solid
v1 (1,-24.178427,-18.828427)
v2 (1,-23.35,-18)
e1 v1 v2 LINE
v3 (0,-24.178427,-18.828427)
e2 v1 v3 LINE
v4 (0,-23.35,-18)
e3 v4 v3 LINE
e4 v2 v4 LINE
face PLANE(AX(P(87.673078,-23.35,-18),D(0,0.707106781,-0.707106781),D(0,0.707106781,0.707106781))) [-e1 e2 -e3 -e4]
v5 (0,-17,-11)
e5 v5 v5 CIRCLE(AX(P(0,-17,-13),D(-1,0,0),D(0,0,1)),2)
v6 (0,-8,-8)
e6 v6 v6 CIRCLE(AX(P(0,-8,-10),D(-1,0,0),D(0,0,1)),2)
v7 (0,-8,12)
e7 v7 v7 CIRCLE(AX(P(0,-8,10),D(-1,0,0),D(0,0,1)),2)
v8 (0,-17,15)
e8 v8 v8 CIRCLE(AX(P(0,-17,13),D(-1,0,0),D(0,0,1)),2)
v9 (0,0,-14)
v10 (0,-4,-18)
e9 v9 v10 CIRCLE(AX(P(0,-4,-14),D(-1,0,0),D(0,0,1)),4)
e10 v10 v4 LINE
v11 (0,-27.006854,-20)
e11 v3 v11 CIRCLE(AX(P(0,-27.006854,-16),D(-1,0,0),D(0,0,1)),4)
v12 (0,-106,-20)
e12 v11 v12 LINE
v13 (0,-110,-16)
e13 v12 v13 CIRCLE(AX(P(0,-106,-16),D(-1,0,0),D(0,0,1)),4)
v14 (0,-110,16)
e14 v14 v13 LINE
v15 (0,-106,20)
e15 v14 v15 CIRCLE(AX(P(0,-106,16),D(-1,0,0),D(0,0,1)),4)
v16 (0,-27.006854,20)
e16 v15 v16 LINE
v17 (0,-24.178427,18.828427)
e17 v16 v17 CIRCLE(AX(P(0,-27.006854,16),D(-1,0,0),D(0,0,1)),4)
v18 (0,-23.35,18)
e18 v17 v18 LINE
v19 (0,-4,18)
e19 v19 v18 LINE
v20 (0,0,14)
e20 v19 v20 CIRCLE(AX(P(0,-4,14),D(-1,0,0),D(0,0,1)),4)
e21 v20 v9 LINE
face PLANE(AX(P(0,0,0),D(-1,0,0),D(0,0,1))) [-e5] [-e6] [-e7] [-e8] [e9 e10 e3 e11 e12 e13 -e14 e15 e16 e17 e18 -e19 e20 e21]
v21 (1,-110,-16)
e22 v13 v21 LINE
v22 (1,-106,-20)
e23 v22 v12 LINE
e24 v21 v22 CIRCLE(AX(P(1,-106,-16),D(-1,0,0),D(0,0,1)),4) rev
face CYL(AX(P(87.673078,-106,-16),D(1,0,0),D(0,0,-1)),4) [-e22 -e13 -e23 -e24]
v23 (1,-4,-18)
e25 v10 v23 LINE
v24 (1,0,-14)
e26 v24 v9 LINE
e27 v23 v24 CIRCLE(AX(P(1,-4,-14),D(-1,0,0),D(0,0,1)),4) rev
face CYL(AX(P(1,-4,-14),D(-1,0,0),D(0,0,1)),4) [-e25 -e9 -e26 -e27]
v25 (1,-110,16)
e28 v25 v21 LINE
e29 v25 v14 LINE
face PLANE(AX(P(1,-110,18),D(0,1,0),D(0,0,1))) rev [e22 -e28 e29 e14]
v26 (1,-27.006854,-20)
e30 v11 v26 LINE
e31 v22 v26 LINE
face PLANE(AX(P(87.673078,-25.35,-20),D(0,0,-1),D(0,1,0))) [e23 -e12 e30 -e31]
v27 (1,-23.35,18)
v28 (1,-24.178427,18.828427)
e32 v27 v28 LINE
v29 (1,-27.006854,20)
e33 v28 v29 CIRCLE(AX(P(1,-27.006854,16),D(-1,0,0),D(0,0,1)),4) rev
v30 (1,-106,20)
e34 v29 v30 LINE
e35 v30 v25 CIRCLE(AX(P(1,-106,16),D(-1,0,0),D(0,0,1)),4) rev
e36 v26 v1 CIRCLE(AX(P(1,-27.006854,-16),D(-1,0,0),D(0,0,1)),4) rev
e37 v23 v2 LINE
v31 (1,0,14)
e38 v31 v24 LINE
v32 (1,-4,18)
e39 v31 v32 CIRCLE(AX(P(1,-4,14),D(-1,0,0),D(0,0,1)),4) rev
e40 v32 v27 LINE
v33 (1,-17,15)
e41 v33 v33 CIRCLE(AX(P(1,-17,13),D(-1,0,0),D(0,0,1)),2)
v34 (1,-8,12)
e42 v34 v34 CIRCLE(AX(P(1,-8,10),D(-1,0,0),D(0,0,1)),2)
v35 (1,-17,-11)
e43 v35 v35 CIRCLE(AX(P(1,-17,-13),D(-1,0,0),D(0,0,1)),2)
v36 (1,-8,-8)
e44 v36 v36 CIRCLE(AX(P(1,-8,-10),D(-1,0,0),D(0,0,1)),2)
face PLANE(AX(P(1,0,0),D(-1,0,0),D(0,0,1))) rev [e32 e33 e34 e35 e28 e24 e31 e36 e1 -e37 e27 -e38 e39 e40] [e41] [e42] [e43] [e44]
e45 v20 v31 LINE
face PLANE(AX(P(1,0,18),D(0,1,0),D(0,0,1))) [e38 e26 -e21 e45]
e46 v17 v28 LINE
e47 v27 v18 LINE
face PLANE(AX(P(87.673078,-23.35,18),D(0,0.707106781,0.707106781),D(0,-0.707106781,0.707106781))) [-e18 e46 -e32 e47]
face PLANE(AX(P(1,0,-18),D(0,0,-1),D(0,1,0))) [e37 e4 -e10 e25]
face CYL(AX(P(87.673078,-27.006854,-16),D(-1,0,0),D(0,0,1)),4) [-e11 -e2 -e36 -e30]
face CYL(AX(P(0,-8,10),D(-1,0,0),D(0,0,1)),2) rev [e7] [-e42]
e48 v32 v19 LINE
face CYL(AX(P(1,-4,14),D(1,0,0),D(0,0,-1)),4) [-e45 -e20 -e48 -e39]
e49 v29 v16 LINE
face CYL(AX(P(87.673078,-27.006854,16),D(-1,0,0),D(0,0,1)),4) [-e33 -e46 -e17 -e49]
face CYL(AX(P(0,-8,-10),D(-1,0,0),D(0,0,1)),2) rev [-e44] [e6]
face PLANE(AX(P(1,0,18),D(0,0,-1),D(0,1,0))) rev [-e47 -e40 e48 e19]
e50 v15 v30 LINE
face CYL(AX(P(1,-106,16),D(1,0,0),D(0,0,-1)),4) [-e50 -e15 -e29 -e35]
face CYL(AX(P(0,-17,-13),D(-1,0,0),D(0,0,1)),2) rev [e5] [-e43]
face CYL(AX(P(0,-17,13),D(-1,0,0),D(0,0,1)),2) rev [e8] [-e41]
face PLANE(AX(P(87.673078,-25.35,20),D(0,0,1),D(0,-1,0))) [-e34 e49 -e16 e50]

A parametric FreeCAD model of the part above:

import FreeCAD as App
import Part
import Sketcher

V = App.Vector


def edges_at(feature, points):
    """Names of the edges that pass closest to the given points."""
    edges = feature.Shape.Edges
    near = lambda p: min(range(len(edges)), key=lambda i: edges[i].distToShape(Part.Vertex(*p))[0])
    return sorted({f"Edge{near(p) + 1}" for p in points})

doc = App.newDocument("Part")
body = doc.addObject("PartDesign::Body", "Body")

sketch1 = doc.addObject("Sketcher::SketchObject", "Sketch")
body.addObject(sketch1)
sketch1.AttachmentSupport = (doc.YZ_Plane, [""])
sketch1.MapMode = "FlatFace"
sketch1.addGeometry([
    Part.LineSegment(V(0, 18, 0), V(-110, 18, 0)),
    Part.LineSegment(V(-110, 18, 0), V(-110, -18, 0)),
    Part.LineSegment(V(-110, -18, 0), V(0, -18, 0)),
    Part.LineSegment(V(0, -18, 0), V(0, 18, 0)),
], False)
sketch1.addConstraint([
    Sketcher.Constraint("Coincident", 0, 2, 1, 1),
    Sketcher.Constraint("Coincident", 1, 2, 2, 1),
    Sketcher.Constraint("Coincident", 2, 2, 3, 1),
    Sketcher.Constraint("Coincident", 3, 2, 0, 1),
    Sketcher.Constraint("Horizontal", 0),
    Sketcher.Constraint("Vertical", 1),
    Sketcher.Constraint("Horizontal", 2),
    Sketcher.Constraint("Vertical", 3),
    Sketcher.Constraint("Symmetric", 2, 2, 3, 2, -1, 1),
    Sketcher.Constraint("DistanceX", 0, 2, 0, 1, 110.0),
    Sketcher.Constraint("DistanceY", 1, 2, 1, 1, 36.0),
])
pad1 = doc.addObject("PartDesign::Pad", "Pad")
body.addObject(pad1)
pad1.Profile = sketch1
pad1.Length = 1

sketch2 = doc.addObject("Sketcher::SketchObject", "Sketch001")
body.addObject(sketch2)
sketch2.AttachmentSupport = (doc.YZ_Plane, [""])
sketch2.MapMode = "FlatFace"
sketch2.addGeometry([
    Part.Circle(V(-8, -10, 0), V(0, 0, 1), 2),
    Part.Circle(V(-8, 10, 0), V(0, 0, 1), 2),
], False)
sketch2.addConstraint([
    Sketcher.Constraint("Equal", 0, 1),
    Sketcher.Constraint("Symmetric", 0, 3, 1, 3, -1),
    Sketcher.Constraint("Diameter", 0, 4.0),
    Sketcher.Constraint("DistanceX", 0, 3, -1, 1, 8.0),
    Sketcher.Constraint("DistanceY", 0, 3, -1, 1, 10.0),
])
doc.recompute()
hole = doc.addObject("PartDesign::Hole", "Hole")
body.addObject(hole)
hole.Profile = sketch2
hole.ThreadType = "None"
hole.Diameter = 4
hole.DepthType = "ThroughAll"
hole.Reversed = True

sketch3 = doc.addObject("Sketcher::SketchObject", "Sketch002")
body.addObject(sketch3)
sketch3.AttachmentSupport = (doc.YZ_Plane, [""])
sketch3.MapMode = "FlatFace"
sketch3.addGeometry([
    Part.Circle(V(-17, -13, 0), V(0, 0, 1), 2),
    Part.Circle(V(-17, 13, 0), V(0, 0, 1), 2),
], False)
sketch3.addConstraint([
    Sketcher.Constraint("Equal", 0, 1),
    Sketcher.Constraint("Symmetric", 0, 3, 1, 3, -1),
    Sketcher.Constraint("Diameter", 0, 4.0),
    Sketcher.Constraint("DistanceX", 0, 3, -1, 1, 17.0),
    Sketcher.Constraint("DistanceY", 0, 3, -1, 1, 13.0),
])
doc.recompute()
hole2 = doc.addObject("PartDesign::Hole", "Hole001")
body.addObject(hole2)
hole2.Profile = sketch3
hole2.ThreadType = "None"
hole2.Diameter = 4
hole2.DepthType = "ThroughAll"
hole2.Reversed = True

sketch4 = doc.addObject("Sketcher::SketchObject", "Sketch003")
body.addObject(sketch4)
sketch4.AttachmentSupport = (doc.YZ_Plane, [""])
sketch4.MapMode = "FlatFace"
sketch4.addGeometry([
    Part.LineSegment(V(-25.4, 20, 0), V(-23.4, 18, 0)),
    Part.LineSegment(V(-23.4, 18, 0), V(-110, 18, 0)),
    Part.LineSegment(V(-110, 18, 0), V(-110, 20, 0)),
    Part.LineSegment(V(-110, 20, 0), V(-25.4, 20, 0)),
    Part.LineSegment(V(-23.4, -18, 0), V(-25.4, -20, 0)),
    Part.LineSegment(V(-25.4, -20, 0), V(-110, -20, 0)),
    Part.LineSegment(V(-110, -20, 0), V(-110, -18, 0)),
    Part.LineSegment(V(-110, -18, 0), V(-23.4, -18, 0)),
], False)
sketch4.addConstraint([
    Sketcher.Constraint("Coincident", 0, 2, 1, 1),
    Sketcher.Constraint("Coincident", 1, 2, 2, 1),
    Sketcher.Constraint("Coincident", 2, 2, 3, 1),
    Sketcher.Constraint("Coincident", 3, 2, 0, 1),
    Sketcher.Constraint("Coincident", 4, 2, 5, 1),
    Sketcher.Constraint("Coincident", 5, 2, 6, 1),
    Sketcher.Constraint("Coincident", 6, 2, 7, 1),
    Sketcher.Constraint("Coincident", 7, 2, 4, 1),
    Sketcher.Constraint("Horizontal", 1),
    Sketcher.Constraint("Vertical", 2),
    Sketcher.Constraint("Horizontal", 3),
    Sketcher.Constraint("Horizontal", 5),
    Sketcher.Constraint("Vertical", 6),
    Sketcher.Constraint("Horizontal", 7),
    Sketcher.Constraint("Symmetric", 3, 2, 4, 2, -1),
    Sketcher.Constraint("Symmetric", 1, 2, 6, 2, -1),
    Sketcher.Constraint("Perpendicular", 0, 4),
    Sketcher.Constraint("Vertical", 0, 2, 7, 2),
    Sketcher.Constraint("DistanceY", 2, 1, 2, 2, 2.0),
    Sketcher.Constraint("DistanceY", -1, 1, 0, 2, 18.0),
    Sketcher.Constraint("DistanceX", 1, 2, -1, 1, 110.0),
    Sketcher.Constraint("DistanceX", 1, 2, 1, 1, 86.65),
])
pad2 = doc.addObject("PartDesign::Pad", "Pad001")
body.addObject(pad2)
pad2.Profile = sketch4
pad2.Length = 1
doc.recompute()

fillet = doc.addObject("PartDesign::Fillet", "Fillet")
body.addObject(fillet)
fillet.Base = (pad2, edges_at(pad2, [(0.5, 0, 18), (0.5, 0, -18)]))
fillet.Radius = 4
doc.recompute()

fillet2 = doc.addObject("PartDesign::Fillet", "Fillet001")
body.addObject(fillet2)
fillet2.Base = (fillet, edges_at(fillet, [
    (0.5, -25.35, 20),
    (0.5, -110, 20),
    (0.5, -110, -20),
    (0.5, -25.35, -20),
]))
fillet2.Radius = 4

doc.recompute()
